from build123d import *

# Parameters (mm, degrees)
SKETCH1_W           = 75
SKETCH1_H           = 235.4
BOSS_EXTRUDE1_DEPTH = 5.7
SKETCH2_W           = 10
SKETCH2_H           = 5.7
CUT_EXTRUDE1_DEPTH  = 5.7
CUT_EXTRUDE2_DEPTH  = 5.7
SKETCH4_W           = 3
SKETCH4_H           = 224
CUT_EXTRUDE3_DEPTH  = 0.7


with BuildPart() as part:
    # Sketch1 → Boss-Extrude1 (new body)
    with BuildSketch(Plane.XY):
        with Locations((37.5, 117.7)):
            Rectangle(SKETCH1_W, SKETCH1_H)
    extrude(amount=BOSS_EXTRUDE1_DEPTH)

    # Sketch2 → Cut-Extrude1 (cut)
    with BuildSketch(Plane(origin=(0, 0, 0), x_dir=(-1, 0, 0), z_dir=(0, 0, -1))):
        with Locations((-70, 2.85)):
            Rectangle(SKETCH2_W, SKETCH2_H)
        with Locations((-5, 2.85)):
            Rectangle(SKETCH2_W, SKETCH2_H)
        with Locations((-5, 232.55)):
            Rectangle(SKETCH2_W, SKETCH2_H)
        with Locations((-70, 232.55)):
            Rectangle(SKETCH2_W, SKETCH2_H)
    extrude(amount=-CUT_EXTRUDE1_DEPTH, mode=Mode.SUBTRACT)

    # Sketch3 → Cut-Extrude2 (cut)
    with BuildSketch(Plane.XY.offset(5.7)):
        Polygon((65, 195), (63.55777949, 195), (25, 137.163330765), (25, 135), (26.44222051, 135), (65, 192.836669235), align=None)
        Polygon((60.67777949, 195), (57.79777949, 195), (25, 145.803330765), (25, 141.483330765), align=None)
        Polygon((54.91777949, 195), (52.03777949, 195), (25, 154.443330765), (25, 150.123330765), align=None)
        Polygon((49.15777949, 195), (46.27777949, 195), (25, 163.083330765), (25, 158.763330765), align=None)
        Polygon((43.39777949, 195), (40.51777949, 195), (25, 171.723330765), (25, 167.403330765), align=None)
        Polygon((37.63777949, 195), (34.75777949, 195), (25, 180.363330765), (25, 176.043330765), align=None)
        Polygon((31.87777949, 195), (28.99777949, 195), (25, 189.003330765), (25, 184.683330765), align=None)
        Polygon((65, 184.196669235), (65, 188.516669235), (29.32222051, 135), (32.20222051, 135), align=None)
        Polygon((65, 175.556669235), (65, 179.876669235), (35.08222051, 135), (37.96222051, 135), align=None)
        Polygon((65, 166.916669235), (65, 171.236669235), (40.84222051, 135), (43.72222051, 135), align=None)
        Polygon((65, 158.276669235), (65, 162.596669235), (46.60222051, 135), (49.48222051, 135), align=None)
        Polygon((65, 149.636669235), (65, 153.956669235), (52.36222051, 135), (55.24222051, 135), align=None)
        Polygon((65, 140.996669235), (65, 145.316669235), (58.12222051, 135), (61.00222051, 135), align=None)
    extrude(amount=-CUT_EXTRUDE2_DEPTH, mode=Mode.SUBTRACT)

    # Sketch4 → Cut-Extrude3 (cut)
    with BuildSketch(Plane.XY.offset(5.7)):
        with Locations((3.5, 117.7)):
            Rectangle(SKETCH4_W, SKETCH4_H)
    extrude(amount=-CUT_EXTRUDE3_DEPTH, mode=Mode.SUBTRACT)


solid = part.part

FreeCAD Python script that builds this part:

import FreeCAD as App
import Part
import Sketcher

doc = App.newDocument("Part")
body = doc.addObject("PartDesign::Body", "Body")

# Sketch on XY plane
sketch1 = body.newObject("Sketcher::SketchObject", "Sketch")
sketch1.AttachmentSupport = (doc.getObject("XY_Plane"), [""])
sketch1.MapMode = "FlatFace"
sketch1.addGeometry([
    Part.LineSegment(App.Vector(0, 235.4, 0), App.Vector(0, 0, 0)),
    Part.LineSegment(App.Vector(0, 0, 0), App.Vector(75, 0, 0)),
    Part.LineSegment(App.Vector(75, 0, 0), App.Vector(75, 235.4, 0)),
    Part.LineSegment(App.Vector(75, 235.4, 0), App.Vector(0, 235.4, 0)),
], False)
sketch1.addConstraint([
    Sketcher.Constraint("Coincident", 0, 2, 1, 1),
    Sketcher.Constraint("Coincident", 1, 2, 2, 1),
    Sketcher.Constraint("Coincident", 2, 2, 3, 1),
    Sketcher.Constraint("Coincident", 3, 2, 0, 1),
    Sketcher.Constraint("Vertical", 0),
    Sketcher.Constraint("Horizontal", 1),
    Sketcher.Constraint("Vertical", 2),
    Sketcher.Constraint("Horizontal", 3),
    Sketcher.Constraint("Coincident", 0, 2, -1, 1),
    Sketcher.Constraint("DistanceX", 1, 1, 1, 2, 75.0),
    Sketcher.Constraint("DistanceY", 0, 2, 0, 1, 235.4),
])
pad1 = body.newObject("PartDesign::Pad", "Pad")
pad1.Profile = sketch1
pad1.Length = 5.7

# Sketch on XY plane
sketch2 = body.newObject("Sketcher::SketchObject", "Sketch001")
sketch2.AttachmentSupport = (doc.getObject("XY_Plane"), [""])
sketch2.MapMode = "FlatFace"
sketch2.addGeometry([
    Part.LineSegment(App.Vector(75, 5.7, 0), App.Vector(75, 0, 0)),  # 0
    Part.LineSegment(App.Vector(75, 0, 0), App.Vector(65, 0, 0)),  # 1
    Part.LineSegment(App.Vector(65, 0, 0), App.Vector(65, 5.7, 0)),  # 2
    Part.LineSegment(App.Vector(65, 5.7, 0), App.Vector(75, 5.7, 0)),  # 3
    Part.LineSegment(App.Vector(10, 5.7, 0), App.Vector(10, 0, 0)),  # 4
    Part.LineSegment(App.Vector(10, 0, 0), App.Vector(0, 0, 0)),  # 5
    Part.LineSegment(App.Vector(0, 0, 0), App.Vector(0, 5.7, 0)),  # 6
    Part.LineSegment(App.Vector(0, 5.7, 0), App.Vector(10, 5.7, 0)),  # 7
    Part.LineSegment(App.Vector(10, 235.4, 0), App.Vector(10, 229.7, 0)),  # 8
    Part.LineSegment(App.Vector(10, 229.7, 0), App.Vector(0, 229.7, 0)),  # 9
    Part.LineSegment(App.Vector(0, 229.7, 0), App.Vector(0, 235.4, 0)),  # 10
    Part.LineSegment(App.Vector(0, 235.4, 0), App.Vector(10, 235.4, 0)),  # 11
    Part.LineSegment(App.Vector(75, 235.4, 0), App.Vector(75, 229.7, 0)),  # 12
    Part.LineSegment(App.Vector(75, 229.7, 0), App.Vector(65, 229.7, 0)),  # 13
    Part.LineSegment(App.Vector(65, 229.7, 0), App.Vector(65, 235.4, 0)),  # 14
    Part.LineSegment(App.Vector(65, 235.4, 0), App.Vector(75, 235.4, 0)),  # 15
], False)
sketch2.addConstraint([
    Sketcher.Constraint("Coincident", 0, 2, 1, 1),
    Sketcher.Constraint("Coincident", 1, 2, 2, 1),
    Sketcher.Constraint("Coincident", 2, 2, 3, 1),
    Sketcher.Constraint("Coincident", 3, 2, 0, 1),
    Sketcher.Constraint("Coincident", 4, 2, 5, 1),
    Sketcher.Constraint("Coincident", 5, 2, 6, 1),
    Sketcher.Constraint("Coincident", 6, 2, 7, 1),
    Sketcher.Constraint("Coincident", 7, 2, 4, 1),
    Sketcher.Constraint("Coincident", 8, 2, 9, 1),
    Sketcher.Constraint("Coincident", 9, 2, 10, 1),
    Sketcher.Constraint("Coincident", 10, 2, 11, 1),
    Sketcher.Constraint("Coincident", 11, 2, 8, 1),
    Sketcher.Constraint("Coincident", 12, 2, 13, 1),
    Sketcher.Constraint("Coincident", 13, 2, 14, 1),
    Sketcher.Constraint("Coincident", 14, 2, 15, 1),
    Sketcher.Constraint("Coincident", 15, 2, 12, 1),
    Sketcher.Constraint("Vertical", 0),
    Sketcher.Constraint("Horizontal", 1),
    Sketcher.Constraint("Vertical", 2),
    Sketcher.Constraint("Horizontal", 3),
    Sketcher.Constraint("Vertical", 4),
    Sketcher.Constraint("Horizontal", 5),
    Sketcher.Constraint("Vertical", 6),
    Sketcher.Constraint("Horizontal", 7),
    Sketcher.Constraint("Vertical", 8),
    Sketcher.Constraint("Horizontal", 9),
    Sketcher.Constraint("Vertical", 10),
    Sketcher.Constraint("Horizontal", 11),
    Sketcher.Constraint("Vertical", 12),
    Sketcher.Constraint("Horizontal", 13),
    Sketcher.Constraint("Vertical", 14),
    Sketcher.Constraint("Horizontal", 15),
    Sketcher.Constraint("Coincident", 5, 2, -1, 1),
    Sketcher.Constraint("PointOnObject", 0, 2, -1),
    Sketcher.Constraint("PointOnObject", 9, 2, -2),
    Sketcher.Constraint("Horizontal", 3, 2, 6, 2),
    Sketcher.Constraint("Horizontal", 9, 2, 12, 2),
    Sketcher.Constraint("Horizontal", 11, 2, 14, 2),
    Sketcher.Constraint("Vertical", 7, 2, 8, 2),
    Sketcher.Constraint("Vertical", 3, 2, 12, 2),
    Sketcher.Constraint("Vertical", 2, 2, 13, 2),
    Sketcher.Constraint("Equal", 3, 5),
    Sketcher.Constraint("Equal", 6, 8),
    Sketcher.Constraint("DistanceX", 1, 2, 1, 1, 10.0),
    Sketcher.Constraint("DistanceY", 0, 2, 0, 1, 5.7),
    Sketcher.Constraint("DistanceX", -1, 1, 0, 2, 75.0),
    Sketcher.Constraint("DistanceY", 7, 2, 8, 2, 224.0),
])
pocket1 = body.newObject("PartDesign::Pocket", "Pocket")
pocket1.Profile = sketch2
pocket1.Length = 5.7
pocket1.Reversed = True

# Sketch on XY plane
sketch3 = body.newObject("Sketcher::SketchObject", "Sketch002")
sketch3.AttachmentSupport = (doc.getObject("XY_Plane"), [""])
sketch3.MapMode = "FlatFace"
sketch3.AttachmentOffset = App.Placement(App.Vector(0, 0, 5.7), App.Rotation())
sketch3.addGeometry([
    Part.LineSegment(App.Vector(65, 195, 0), App.Vector(63.557779, 195, 0)),  # 0
    Part.LineSegment(App.Vector(63.557779, 195, 0), App.Vector(25, 137.163331, 0)),  # 1
    Part.LineSegment(App.Vector(25, 137.163331, 0), App.Vector(25, 135, 0)),  # 2
    Part.LineSegment(App.Vector(25, 135, 0), App.Vector(26.442221, 135, 0)),  # 3
    Part.LineSegment(App.Vector(26.442221, 135, 0), App.Vector(65, 192.836669, 0)),  # 4
    Part.LineSegment(App.Vector(65, 192.836669, 0), App.Vector(65, 195, 0)),  # 5
    Part.LineSegment(App.Vector(60.677779, 195, 0), App.Vector(57.797779, 195, 0)),  # 6
    Part.LineSegment(App.Vector(57.797779, 195, 0), App.Vector(25, 145.803331, 0)),  # 7
    Part.LineSegment(App.Vector(25, 145.803331, 0), App.Vector(25, 141.483331, 0)),  # 8
    Part.LineSegment(App.Vector(25, 141.483331, 0), App.Vector(60.677779, 195, 0)),  # 9
    Part.LineSegment(App.Vector(54.917779, 195, 0), App.Vector(52.037779, 195, 0)),  # 10
    Part.LineSegment(App.Vector(52.037779, 195, 0), App.Vector(25, 154.443331, 0)),  # 11
    Part.LineSegment(App.Vector(25, 154.443331, 0), App.Vector(25, 150.123331, 0)),  # 12
    Part.LineSegment(App.Vector(25, 150.123331, 0), App.Vector(54.917779, 195, 0)),  # 13
    Part.LineSegment(App.Vector(49.157779, 195, 0), App.Vector(46.277779, 195, 0)),  # 14
    Part.LineSegment(App.Vector(46.277779, 195, 0), App.Vector(25, 163.083331, 0)),  # 15
    Part.LineSegment(App.Vector(25, 163.083331, 0), App.Vector(25, 158.763331, 0)),  # 16
    Part.LineSegment(App.Vector(25, 158.763331, 0), App.Vector(49.157779, 195, 0)),  # 17
    Part.LineSegment(App.Vector(43.397779, 195, 0), App.Vector(40.517779, 195, 0)),  # 18
    Part.LineSegment(App.Vector(40.517779, 195, 0), App.Vector(25, 171.723331, 0)),  # 19
    Part.LineSegment(App.Vector(25, 171.723331, 0), App.Vector(25, 167.403331, 0)),  # 20
    Part.LineSegment(App.Vector(25, 167.403331, 0), App.Vector(43.397779, 195, 0)),  # 21
    Part.LineSegment(App.Vector(37.637779, 195, 0), App.Vector(34.757779, 195, 0)),  # 22
    Part.LineSegment(App.Vector(34.757779, 195, 0), App.Vector(25, 180.363331, 0)),  # 23
    Part.LineSegment(App.Vector(25, 180.363331, 0), App.Vector(25, 176.043331, 0)),  # 24
    Part.LineSegment(App.Vector(25, 176.043331, 0), App.Vector(37.637779, 195, 0)),  # 25
    Part.LineSegment(App.Vector(31.877779, 195, 0), App.Vector(28.997779, 195, 0)),  # 26
    Part.LineSegment(App.Vector(28.997779, 195, 0), App.Vector(25, 189.003331, 0)),  # 27
    Part.LineSegment(App.Vector(25, 189.003331, 0), App.Vector(25, 184.683331, 0)),  # 28
    Part.LineSegment(App.Vector(25, 184.683331, 0), App.Vector(31.877779, 195, 0)),  # 29
    Part.LineSegment(App.Vector(65, 184.196669, 0), App.Vector(65, 188.516669, 0)),  # 30
    Part.LineSegment(App.Vector(65, 188.516669, 0), App.Vector(29.322221, 135, 0)),  # 31
    Part.LineSegment(App.Vector(29.322221, 135, 0), App.Vector(32.202221, 135, 0)),  # 32
    Part.LineSegment(App.Vector(32.202221, 135, 0), App.Vector(65, 184.196669, 0)),  # 33
    Part.LineSegment(App.Vector(65, 175.556669, 0), App.Vector(65, 179.876669, 0)),  # 34
    Part.LineSegment(App.Vector(65, 179.876669, 0), App.Vector(35.082221, 135, 0)),  # 35
    Part.LineSegment(App.Vector(35.082221, 135, 0), App.Vector(37.962221, 135, 0)),  # 36
    Part.LineSegment(App.Vector(37.962221, 135, 0), App.Vector(65, 175.556669, 0)),  # 37
    Part.LineSegment(App.Vector(65, 166.916669, 0), App.Vector(65, 171.236669, 0)),  # 38
    Part.LineSegment(App.Vector(65, 171.236669, 0), App.Vector(40.842221, 135, 0)),  # 39
    Part.LineSegment(App.Vector(40.842221, 135, 0), App.Vector(43.722221, 135, 0)),  # 40
    Part.LineSegment(App.Vector(43.722221, 135, 0), App.Vector(65, 166.916669, 0)),  # 41
    Part.LineSegment(App.Vector(65, 158.276669, 0), App.Vector(65, 162.596669, 0)),  # 42
    Part.LineSegment(App.Vector(65, 162.596669, 0), App.Vector(46.602221, 135, 0)),  # 43
    Part.LineSegment(App.Vector(46.602221, 135, 0), App.Vector(49.482221, 135, 0)),  # 44
    Part.LineSegment(App.Vector(49.482221, 135, 0), App.Vector(65, 158.276669, 0)),  # 45
    Part.LineSegment(App.Vector(65, 149.636669, 0), App.Vector(65, 153.956669, 0)),  # 46
    Part.LineSegment(App.Vector(65, 153.956669, 0), App.Vector(52.362221, 135, 0)),  # 47
    Part.LineSegment(App.Vector(52.362221, 135, 0), App.Vector(55.242221, 135, 0)),  # 48
    Part.LineSegment(App.Vector(55.242221, 135, 0), App.Vector(65, 149.636669, 0)),  # 49
    Part.LineSegment(App.Vector(65, 140.996669, 0), App.Vector(65, 145.316669, 0)),  # 50
    Part.LineSegment(App.Vector(65, 145.316669, 0), App.Vector(58.122221, 135, 0)),  # 51
    Part.LineSegment(App.Vector(58.122221, 135, 0), App.Vector(61.002221, 135, 0)),  # 52
    Part.LineSegment(App.Vector(61.002221, 135, 0), App.Vector(65, 140.996669, 0)),  # 53
], False)
sketch3.addConstraint([
    Sketcher.Constraint("Coincident", 0, 2, 1, 1),
    Sketcher.Constraint("Coincident", 1, 2, 2, 1),
    Sketcher.Constraint("Coincident", 2, 2, 3, 1),
    Sketcher.Constraint("Coincident", 3, 2, 4, 1),
    Sketcher.Constraint("Coincident", 4, 2, 5, 1),
    Sketcher.Constraint("Coincident", 5, 2, 0, 1),
    Sketcher.Constraint("Coincident", 6, 2, 7, 1),
    Sketcher.Constraint("Coincident", 7, 2, 8, 1),
    Sketcher.Constraint("Coincident", 8, 2, 9, 1),
    Sketcher.Constraint("Coincident", 9, 2, 6, 1),
    Sketcher.Constraint("Coincident", 10, 2, 11, 1),
    Sketcher.Constraint("Coincident", 11, 2, 12, 1),
    Sketcher.Constraint("Coincident", 12, 2, 13, 1),
    Sketcher.Constraint("Coincident", 13, 2, 10, 1),
    Sketcher.Constraint("Coincident", 14, 2, 15, 1),
    Sketcher.Constraint("Coincident", 15, 2, 16, 1),
    Sketcher.Constraint("Coincident", 16, 2, 17, 1),
    Sketcher.Constraint("Coincident", 17, 2, 14, 1),
    Sketcher.Constraint("Coincident", 18, 2, 19, 1),
    Sketcher.Constraint("Coincident", 19, 2, 20, 1),
    Sketcher.Constraint("Coincident", 20, 2, 21, 1),
    Sketcher.Constraint("Coincident", 21, 2, 18, 1),
    Sketcher.Constraint("Coincident", 22, 2, 23, 1),
    Sketcher.Constraint("Coincident", 23, 2, 24, 1),
    Sketcher.Constraint("Coincident", 24, 2, 25, 1),
    Sketcher.Constraint("Coincident", 25, 2, 22, 1),
    Sketcher.Constraint("Coincident", 26, 2, 27, 1),
    Sketcher.Constraint("Coincident", 27, 2, 28, 1),
    Sketcher.Constraint("Coincident", 28, 2, 29, 1),
    Sketcher.Constraint("Coincident", 29, 2, 26, 1),
    Sketcher.Constraint("Coincident", 30, 2, 31, 1),
    Sketcher.Constraint("Coincident", 31, 2, 32, 1),
    Sketcher.Constraint("Coincident", 32, 2, 33, 1),
    Sketcher.Constraint("Coincident", 33, 2, 30, 1),
    Sketcher.Constraint("Coincident", 34, 2, 35, 1),
    Sketcher.Constraint("Coincident", 35, 2, 36, 1),
    Sketcher.Constraint("Coincident", 36, 2, 37, 1),
    Sketcher.Constraint("Coincident", 37, 2, 34, 1),
    Sketcher.Constraint("Coincident", 38, 2, 39, 1),
    Sketcher.Constraint("Coincident", 39, 2, 40, 1),
    Sketcher.Constraint("Coincident", 40, 2, 41, 1),
    Sketcher.Constraint("Coincident", 41, 2, 38, 1),
    Sketcher.Constraint("Coincident", 42, 2, 43, 1),
    Sketcher.Constraint("Coincident", 43, 2, 44, 1),
    Sketcher.Constraint("Coincident", 44, 2, 45, 1),
    Sketcher.Constraint("Coincident", 45, 2, 42, 1),
    Sketcher.Constraint("Coincident", 46, 2, 47, 1),
    Sketcher.Constraint("Coincident", 47, 2, 48, 1),
    Sketcher.Constraint("Coincident", 48, 2, 49, 1),
    Sketcher.Constraint("Coincident", 49, 2, 46, 1),
    Sketcher.Constraint("Coincident", 50, 2, 51, 1),
    Sketcher.Constraint("Coincident", 51, 2, 52, 1),
    Sketcher.Constraint("Coincident", 52, 2, 53, 1),
    Sketcher.Constraint("Coincident", 53, 2, 50, 1),
    Sketcher.Constraint("Horizontal", 0),
    Sketcher.Constraint("Vertical", 2),
    Sketcher.Constraint("Horizontal", 3),
    Sketcher.Constraint("Vertical", 5),
    Sketcher.Constraint("Horizontal", 6),
    Sketcher.Constraint("Vertical", 8),
    Sketcher.Constraint("Horizontal", 10),
    Sketcher.Constraint("Vertical", 12),
    Sketcher.Constraint("Horizontal", 14),
    Sketcher.Constraint("Vertical", 16),
    Sketcher.Constraint("Horizontal", 18),
    Sketcher.Constraint("Vertical", 20),
    Sketcher.Constraint("Horizontal", 22),
    Sketcher.Constraint("Vertical", 24),
    Sketcher.Constraint("Horizontal", 26),
    Sketcher.Constraint("Vertical", 28),
    Sketcher.Constraint("Vertical", 30),
    Sketcher.Constraint("Horizontal", 32),
    Sketcher.Constraint("Vertical", 34),
    Sketcher.Constraint("Horizontal", 36),
    Sketcher.Constraint("Vertical", 38),
    Sketcher.Constraint("Horizontal", 40),
    Sketcher.Constraint("Vertical", 42),
    Sketcher.Constraint("Horizontal", 44),
    Sketcher.Constraint("Vertical", 46),
    Sketcher.Constraint("Horizontal", 48),
    Sketcher.Constraint("Vertical", 50),
    Sketcher.Constraint("Horizontal", 52),
    Sketcher.Constraint("Parallel", 1, 4),
    Sketcher.Constraint("Parallel", 4, 7),
    Sketcher.Constraint("Parallel", 7, 9),
    Sketcher.Constraint("Parallel", 9, 11),
    Sketcher.Constraint("Parallel", 11, 13),
    Sketcher.Constraint("Parallel", 13, 15),
    Sketcher.Constraint("Parallel", 15, 17),
    Sketcher.Constraint("Parallel", 17, 19),
    Sketcher.Constraint("Parallel", 19, 21),
    Sketcher.Constraint("Parallel", 21, 23),
    Sketcher.Constraint("Parallel", 23, 25),
    Sketcher.Constraint("Parallel", 25, 27),
    Sketcher.Constraint("Parallel", 27, 29),
    Sketcher.Constraint("Parallel", 29, 31),
    Sketcher.Constraint("Parallel", 31, 33),
    Sketcher.Constraint("Parallel", 33, 35),
    Sketcher.Constraint("Parallel", 35, 37),
    Sketcher.Constraint("Parallel", 37, 39),
    Sketcher.Constraint("Parallel", 39, 41),
    Sketcher.Constraint("Parallel", 41, 43),
    Sketcher.Constraint("Parallel", 43, 45),
    Sketcher.Constraint("Parallel", 45, 47),
    Sketcher.Constraint("Parallel", 47, 49),
    Sketcher.Constraint("Parallel", 49, 51),
    Sketcher.Constraint("Parallel", 51, 53),
    Sketcher.Constraint("Horizontal", 5, 2, 6, 2),
    Sketcher.Constraint("Horizontal", 9, 2, 10, 2),
    Sketcher.Constraint("Horizontal", 13, 2, 14, 2),
    Sketcher.Constraint("Horizontal", 17, 2, 18, 2),
    Sketcher.Constraint("Horizontal", 21, 2, 22, 2),
    Sketcher.Constraint("Horizontal", 25, 2, 26, 2),
    Sketcher.Constraint("Horizontal", 3, 2, 31, 2),
    Sketcher.Constraint("Horizontal", 32, 2, 35, 2),
    Sketcher.Constraint("Horizontal", 36, 2, 39, 2),
    Sketcher.Constraint("Horizontal", 40, 2, 43, 2),
    Sketcher.Constraint("Horizontal", 44, 2, 47, 2),
    Sketcher.Constraint("Horizontal", 48, 2, 51, 2),
    Sketcher.Constraint("Vertical", 2, 2, 7, 2),
    Sketcher.Constraint("Vertical", 8, 2, 11, 2),
    Sketcher.Constraint("Vertical", 12, 2, 15, 2),
    Sketcher.Constraint("Vertical", 16, 2, 19, 2),
    Sketcher.Constraint("Vertical", 20, 2, 23, 2),
    Sketcher.Constraint("Vertical", 24, 2, 27, 2),
    Sketcher.Constraint("Vertical", 5, 2, 30, 2),
    Sketcher.Constraint("Vertical", 33, 2, 34, 2),
    Sketcher.Constraint("Vertical", 37, 2, 38, 2),
    Sketcher.Constraint("Vertical", 41, 2, 42, 2),
    Sketcher.Constraint("Vertical", 45, 2, 46, 2),
    Sketcher.Constraint("Vertical", 49, 2, 50, 2),
    Sketcher.Constraint("Equal", 0, 3),
    Sketcher.Constraint("Equal", 6, 10),
    Sketcher.Constraint("Equal", 10, 14),
    Sketcher.Constraint("Equal", 14, 18),
    Sketcher.Constraint("Equal", 18, 22),
    Sketcher.Constraint("Equal", 22, 26),
    Sketcher.Constraint("Equal", 26, 32),
    Sketcher.Constraint("Equal", 32, 36),
    Sketcher.Constraint("Equal", 36, 40),
    Sketcher.Constraint("Equal", 40, 44),
    Sketcher.Constraint("Equal", 44, 48),
    Sketcher.Constraint("Equal", 48, 52),
    Sketcher.Constraint("Equal", 9, 31),
    Sketcher.Constraint("Equal", 13, 35),
    Sketcher.Constraint("Equal", 17, 39),
    Sketcher.Constraint("Equal", 21, 43),
    Sketcher.Constraint("Equal", 25, 47),
    Sketcher.Constraint("Equal", 29, 51),
    Sketcher.Constraint("DistanceY", -1, 1, 0, 2, 195.0),
    Sketcher.Constraint("DistanceX", -1, 1, 1, 2, 25.0),
    Sketcher.Constraint("DistanceY", -1, 1, 2, 2, 135.0),
    Sketcher.Constraint("DistanceX", -1, 1, 4, 2, 65.0),
    Sketcher.Constraint("DistanceX", 6, 2, 6, 1, 2.88),
    Sketcher.Constraint("DistanceY", 8, 2, 8, 1, 4.32),
    Sketcher.Constraint("DistanceX", 14, 2, 9, 2, 14.4),
    Sketcher.Constraint("DistanceX", 18, 2, 13, 2, 14.4),
    Sketcher.Constraint("DistanceX", 22, 2, 17, 2, 14.4),
    Sketcher.Constraint("DistanceX", 26, 2, 21, 2, 14.4),
    Sketcher.Constraint("DistanceY", 38, 2, 4, 2, 21.6),
    Sketcher.Constraint("DistanceY", 42, 2, 33, 2, 21.6),
    Sketcher.Constraint("Distance", 27, 7.207099),
])
pocket2 = body.newObject("PartDesign::Pocket", "Pocket001")
pocket2.Profile = sketch3
pocket2.Length = 5.7

# Sketch on XY plane
sketch4 = body.newObject("Sketcher::SketchObject", "Sketch003")
sketch4.AttachmentSupport = (doc.getObject("XY_Plane"), [""])
sketch4.MapMode = "FlatFace"
sketch4.AttachmentOffset = App.Placement(App.Vector(0, 0, 5.7), App.Rotation())
sketch4.addGeometry([
    Part.LineSegment(App.Vector(2, 229.7, 0), App.Vector(2, 5.7, 0)),
    Part.LineSegment(App.Vector(2, 5.7, 0), App.Vector(5, 5.7, 0)),
    Part.LineSegment(App.Vector(5, 5.7, 0), App.Vector(5, 229.7, 0)),
    Part.LineSegment(App.Vector(5, 229.7, 0), App.Vector(2, 229.7, 0)),
], False)
sketch4.addConstraint([
    Sketcher.Constraint("Coincident", 0, 2, 1, 1),
    Sketcher.Constraint("Coincident", 1, 2, 2, 1),
    Sketcher.Constraint("Coincident", 2, 2, 3, 1),
    Sketcher.Constraint("Coincident", 3, 2, 0, 1),
    Sketcher.Constraint("Vertical", 0),
    Sketcher.Constraint("Horizontal", 1),
    Sketcher.Constraint("Vertical", 2),
    Sketcher.Constraint("Horizontal", 3),
    Sketcher.Constraint("DistanceX", 1, 1, 1, 2, 3.0),
    Sketcher.Constraint("DistanceY", 0, 2, 0, 1, 224.0),
    Sketcher.Constraint("DistanceX", -1, 1, 0, 2, 2.0),
    Sketcher.Constraint("DistanceY", -1, 1, 0, 2, 5.7),
])
pocket3 = body.newObject("PartDesign::Pocket", "Pocket002")
pocket3.Profile = sketch4
pocket3.Length = 0.7

doc.recompute()
